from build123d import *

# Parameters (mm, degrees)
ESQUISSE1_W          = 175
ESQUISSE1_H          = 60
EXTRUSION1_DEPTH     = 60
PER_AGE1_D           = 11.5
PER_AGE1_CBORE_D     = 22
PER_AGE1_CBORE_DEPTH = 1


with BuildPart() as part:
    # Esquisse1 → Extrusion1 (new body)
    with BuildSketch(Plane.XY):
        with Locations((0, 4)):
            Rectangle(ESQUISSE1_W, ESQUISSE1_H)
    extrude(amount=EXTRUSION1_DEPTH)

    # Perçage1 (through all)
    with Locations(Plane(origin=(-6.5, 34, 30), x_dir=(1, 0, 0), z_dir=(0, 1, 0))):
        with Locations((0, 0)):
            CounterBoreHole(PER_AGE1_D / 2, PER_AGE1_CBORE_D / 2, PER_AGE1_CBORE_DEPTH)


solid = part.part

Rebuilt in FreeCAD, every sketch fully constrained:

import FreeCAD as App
import Part
import Sketcher
from FreeCAD import Vector
Q = App.Units.Quantity

doc = App.newDocument("Part")
body = doc.addObject("PartDesign::Body", "Body")

# Sketch on XY plane
sketch1 = body.newObject("Sketcher::SketchObject", "Sketch")
sketch1.AttachmentSupport = (doc.getObject("XY_Plane"), [""])
sketch1.MapMode = "FlatFace"
sketch1.addGeometry(Part.LineSegment(Vector(-87.5, 34, 0), Vector(-87.5, -26, 0)), False)
sketch1.addGeometry(Part.LineSegment(Vector(-87.5, -26, 0), Vector(87.5, -26, 0)), False)
sketch1.addGeometry(Part.LineSegment(Vector(87.5, -26, 0), Vector(87.5, 34, 0)), False)
sketch1.addGeometry(Part.LineSegment(Vector(87.5, 34, 0), Vector(-87.5, 34, 0)), False)
sketch1.addConstraint(Sketcher.Constraint("Coincident", 0, 2, 1, 1))
sketch1.addConstraint(Sketcher.Constraint("Coincident", 1, 2, 2, 1))
sketch1.addConstraint(Sketcher.Constraint("Coincident", 2, 2, 3, 1))
sketch1.addConstraint(Sketcher.Constraint("Coincident", 3, 2, 0, 1))
sketch1.addConstraint(Sketcher.Constraint("Vertical", 0))
sketch1.addConstraint(Sketcher.Constraint("Horizontal", 1))
sketch1.addConstraint(Sketcher.Constraint("Vertical", 2))
sketch1.addConstraint(Sketcher.Constraint("Horizontal", 3))
sketch1.addConstraint(Sketcher.Constraint("DistanceX", 1, 1, 1, 2, Q("175 mm")))
sketch1.addConstraint(Sketcher.Constraint("DistanceY", 0, 2, 0, 1, Q("60 mm")))
sketch1.addConstraint(Sketcher.Constraint("DistanceY", 0, 2, -1, 1, Q("26 mm")))
sketch1.addConstraint(Sketcher.Constraint("DistanceX", 0, 2, -1, 1, Q("87.5 mm")))
pad1 = body.newObject("PartDesign::Pad", "Pad")
pad1.Profile = sketch1
pad1.Length = 60

# Sketch on XZ plane
sketch2 = body.newObject("Sketcher::SketchObject", "Sketch001")
sketch2.AttachmentSupport = (doc.getObject("XZ_Plane"), [""])
sketch2.MapMode = "FlatFace"
sketch2.AttachmentOffset = App.Placement(Vector(0, 0, -34), App.Rotation())
sketch2.addGeometry(Part.Circle(Vector(-6.5, 30, 0), Vector(0, 0, 1), 5.75), False)
sketch2.addConstraint(Sketcher.Constraint("Diameter", 0, Q("11.5 mm")))
sketch2.addConstraint(Sketcher.Constraint("DistanceY", -1, 1, 0, 3, Q("30 mm")))
sketch2.addConstraint(Sketcher.Constraint("DistanceX", 0, 3, -1, 1, Q("6.5 mm")))
doc.recompute()
hole = body.newObject("PartDesign::Hole", "Hole")
hole.Profile = sketch2
hole.ThreadType = "None"
hole.Diameter = 11.5
hole.DepthType = "ThroughAll"
hole.HoleCutType = "Counterbore"
hole.HoleCutDiameter = 22
hole.HoleCutDepth = 1
hole.Reversed = True

doc.recompute()
